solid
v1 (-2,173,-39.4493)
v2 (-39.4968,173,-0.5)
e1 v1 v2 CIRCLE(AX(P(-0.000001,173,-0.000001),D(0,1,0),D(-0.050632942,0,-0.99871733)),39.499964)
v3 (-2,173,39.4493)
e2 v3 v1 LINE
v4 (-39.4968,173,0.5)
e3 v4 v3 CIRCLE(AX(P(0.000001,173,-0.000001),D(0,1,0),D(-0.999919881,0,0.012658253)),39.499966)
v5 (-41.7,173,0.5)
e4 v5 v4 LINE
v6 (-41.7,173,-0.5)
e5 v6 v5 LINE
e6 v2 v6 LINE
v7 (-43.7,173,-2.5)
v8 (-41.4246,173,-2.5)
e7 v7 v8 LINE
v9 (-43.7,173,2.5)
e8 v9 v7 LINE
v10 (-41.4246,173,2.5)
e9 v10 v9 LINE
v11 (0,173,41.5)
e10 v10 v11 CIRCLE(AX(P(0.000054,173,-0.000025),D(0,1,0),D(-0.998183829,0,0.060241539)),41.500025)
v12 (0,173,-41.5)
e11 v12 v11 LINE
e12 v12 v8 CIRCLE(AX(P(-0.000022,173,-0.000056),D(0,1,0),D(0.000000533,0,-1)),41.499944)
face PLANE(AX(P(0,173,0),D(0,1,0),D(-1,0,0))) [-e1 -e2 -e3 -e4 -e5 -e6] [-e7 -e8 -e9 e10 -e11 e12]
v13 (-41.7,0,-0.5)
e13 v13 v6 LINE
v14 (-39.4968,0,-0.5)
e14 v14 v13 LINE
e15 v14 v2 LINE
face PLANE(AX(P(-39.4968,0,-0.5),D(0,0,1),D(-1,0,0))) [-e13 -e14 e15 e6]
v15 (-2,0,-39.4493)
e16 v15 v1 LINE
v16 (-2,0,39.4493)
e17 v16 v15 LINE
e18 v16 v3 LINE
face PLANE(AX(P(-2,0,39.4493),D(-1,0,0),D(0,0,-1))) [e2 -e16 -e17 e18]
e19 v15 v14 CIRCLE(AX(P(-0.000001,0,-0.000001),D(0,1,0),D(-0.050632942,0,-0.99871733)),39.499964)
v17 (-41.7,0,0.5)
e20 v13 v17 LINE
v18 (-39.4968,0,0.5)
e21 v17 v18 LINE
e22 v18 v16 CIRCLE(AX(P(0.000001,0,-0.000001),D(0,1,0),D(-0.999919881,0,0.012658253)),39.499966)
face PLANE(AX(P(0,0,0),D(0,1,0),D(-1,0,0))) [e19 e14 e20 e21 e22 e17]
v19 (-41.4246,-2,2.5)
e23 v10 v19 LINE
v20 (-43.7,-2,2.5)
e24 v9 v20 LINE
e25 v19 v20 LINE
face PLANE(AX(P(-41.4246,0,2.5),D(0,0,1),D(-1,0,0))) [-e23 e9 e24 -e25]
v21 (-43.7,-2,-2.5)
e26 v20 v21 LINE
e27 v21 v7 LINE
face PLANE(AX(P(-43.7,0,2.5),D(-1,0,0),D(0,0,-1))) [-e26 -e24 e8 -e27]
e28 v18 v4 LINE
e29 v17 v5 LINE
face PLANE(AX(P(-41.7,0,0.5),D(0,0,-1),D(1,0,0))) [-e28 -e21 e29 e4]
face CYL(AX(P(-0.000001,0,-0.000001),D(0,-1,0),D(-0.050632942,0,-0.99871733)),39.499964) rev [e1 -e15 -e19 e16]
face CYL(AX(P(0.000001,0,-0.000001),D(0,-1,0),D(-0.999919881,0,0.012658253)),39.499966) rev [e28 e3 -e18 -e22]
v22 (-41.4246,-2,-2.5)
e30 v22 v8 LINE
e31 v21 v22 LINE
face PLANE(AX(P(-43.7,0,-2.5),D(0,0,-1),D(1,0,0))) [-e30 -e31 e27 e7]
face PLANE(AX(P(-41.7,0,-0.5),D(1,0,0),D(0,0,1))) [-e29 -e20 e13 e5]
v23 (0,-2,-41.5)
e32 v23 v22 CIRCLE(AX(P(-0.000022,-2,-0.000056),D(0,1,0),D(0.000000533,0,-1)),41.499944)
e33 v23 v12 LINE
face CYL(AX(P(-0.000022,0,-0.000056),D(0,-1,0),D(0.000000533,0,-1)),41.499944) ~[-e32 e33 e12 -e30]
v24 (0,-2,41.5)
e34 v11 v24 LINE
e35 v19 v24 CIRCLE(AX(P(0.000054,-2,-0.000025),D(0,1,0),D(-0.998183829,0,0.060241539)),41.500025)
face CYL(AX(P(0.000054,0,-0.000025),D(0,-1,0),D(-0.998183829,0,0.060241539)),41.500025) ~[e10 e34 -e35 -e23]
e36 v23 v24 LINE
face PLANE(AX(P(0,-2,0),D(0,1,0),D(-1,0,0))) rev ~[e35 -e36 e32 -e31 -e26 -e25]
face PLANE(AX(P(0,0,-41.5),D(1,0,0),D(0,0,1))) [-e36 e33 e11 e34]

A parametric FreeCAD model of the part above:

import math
import FreeCAD as App
import Part
import Sketcher

V = App.Vector

doc = App.newDocument("Part")
params = doc.addObject("Spreadsheet::Sheet", "Params")
for row, (alias, value) in enumerate([
    ("sketch1_radius", "41.5 mm"),
    ("sketch1_height", "5 mm"),
    ("pad1_length", "2 mm"),
    ("sketch2_radius", "41.5 mm"),
    ("sketch2_height", "5 mm"),
    ("sketch2_radius2", "39.5 mm"),
    ("pad2_length", "173 mm"),
], start=1):
    params.set(f"A{row}", alias)
    params.set(f"B{row}", "=" + value)
    params.setAlias(f"B{row}", alias)

body = doc.addObject("PartDesign::Body", "Body")

# Sketch on XZ plane
sketch1 = body.newObject("Sketcher::SketchObject", "Sketch")
sketch1.AttachmentSupport = (doc.getObject("XZ_Plane"), [""])
sketch1.MapMode = "FlatFace"
sketch1.addGeometry([
    Part.LineSegment(V(0, 41.5, 0), V(0, -41.5, 0)),  # 0
    Part.ArcOfCircle(Part.Circle(V(0, 0, 0), V(0, 0, 1), 41.5), math.radians(-177), math.radians(-90)),  # 1
    Part.LineSegment(V(-41.4, -2.5, 0), V(-43.7, -2.5, 0)),  # 2
    Part.LineSegment(V(-43.7, -2.5, 0), V(-43.7, 2.5, 0)),  # 3
    Part.LineSegment(V(-43.7, 2.5, 0), V(-41.4, 2.5, 0)),  # 4
    Part.ArcOfCircle(Part.Circle(V(0, 0, 0), V(0, 0, 1), 41.5), math.radians(90), math.radians(177)),  # 5
], False)
sketch1.addConstraint([
    Sketcher.Constraint("Coincident", 0, 2, 1, 2),
    Sketcher.Constraint("Coincident", 1, 1, 2, 1),
    Sketcher.Constraint("Coincident", 2, 2, 3, 1),
    Sketcher.Constraint("Coincident", 3, 2, 4, 1),
    Sketcher.Constraint("Coincident", 4, 2, 5, 2),
    Sketcher.Constraint("Coincident", 5, 1, 0, 1),
    Sketcher.Constraint("Vertical", 0),
    Sketcher.Constraint("Horizontal", 2),
    Sketcher.Constraint("Vertical", 3),
    Sketcher.Constraint("Horizontal", 4),
    Sketcher.Constraint("Coincident", 1, 3, -1, 1),
    Sketcher.Constraint("Coincident", 5, 3, -1, 1),
    Sketcher.Constraint("Equal", 1, 5),
    Sketcher.Constraint("PointOnObject", 0, 2, -2),
    Sketcher.Constraint("Vertical", 1, 1, 4, 2),
    Sketcher.Constraint("Radius", 1, 41.5),
    Sketcher.Constraint("DistanceY", 3, 1, 3, 2, 5.0),
    Sketcher.Constraint("DistanceX", 2, 2, -1, 1, 43.7),
])
sketch1.setExpression("Constraints[15]", "Params.sketch1_radius")
sketch1.setExpression("Constraints[16]", "Params.sketch1_height")
pad1 = body.newObject("PartDesign::Pad", "Pad")
pad1.Profile = sketch1
pad1.setExpression("Length", "Params.pad1_length")

# Sketch on XZ plane
sketch2 = body.newObject("Sketcher::SketchObject", "Sketch001")
sketch2.AttachmentSupport = (doc.getObject("XZ_Plane"), [""])
sketch2.MapMode = "FlatFace"
sketch2.addGeometry([
    Part.LineSegment(V(0, 41.5, 0), V(0, -41.5, 0)),  # 0
    Part.ArcOfCircle(Part.Circle(V(0, 0, 0), V(0, 0, 1), 41.5), math.radians(-177), math.radians(-90)),  # 1
    Part.LineSegment(V(-41.4, -2.5, 0), V(-43.7, -2.5, 0)),  # 2
    Part.LineSegment(V(-43.7, -2.5, 0), V(-43.7, 2.5, 0)),  # 3
    Part.LineSegment(V(-43.7, 2.5, 0), V(-41.4, 2.5, 0)),  # 4
    Part.ArcOfCircle(Part.Circle(V(0, 0, 0), V(0, 0, 1), 41.5), math.radians(90), math.radians(177)),  # 5
    Part.LineSegment(V(-2, -39.4, 0), V(-2, 39.4, 0)),  # 6
    Part.ArcOfCircle(Part.Circle(V(0, 0, 0), V(0, 0, 1), 39.5), math.radians(93), math.radians(179)),  # 7
    Part.LineSegment(V(-39.5, 0.5, 0), V(-41.7, 0.5, 0)),  # 8
    Part.LineSegment(V(-41.7, 0.5, 0), V(-41.7, -0.5, 0)),  # 9
    Part.LineSegment(V(-41.7, -0.5, 0), V(-39.5, -0.5, 0)),  # 10
    Part.ArcOfCircle(Part.Circle(V(0, 0, 0), V(0, 0, 1), 39.5), math.radians(-179), math.radians(-93)),  # 11
], False)
sketch2.addConstraint([
    Sketcher.Constraint("Coincident", 0, 2, 1, 2),
    Sketcher.Constraint("Coincident", 1, 1, 2, 1),
    Sketcher.Constraint("Coincident", 2, 2, 3, 1),
    Sketcher.Constraint("Coincident", 3, 2, 4, 1),
    Sketcher.Constraint("Coincident", 4, 2, 5, 2),
    Sketcher.Constraint("Coincident", 5, 1, 0, 1),
    Sketcher.Constraint("Coincident", 6, 2, 7, 1),
    Sketcher.Constraint("Coincident", 7, 2, 8, 1),
    Sketcher.Constraint("Coincident", 8, 2, 9, 1),
    Sketcher.Constraint("Coincident", 9, 2, 10, 1),
    Sketcher.Constraint("Coincident", 10, 2, 11, 1),
    Sketcher.Constraint("Coincident", 11, 2, 6, 1),
    Sketcher.Constraint("Vertical", 0),
    Sketcher.Constraint("Horizontal", 2),
    Sketcher.Constraint("Vertical", 3),
    Sketcher.Constraint("Horizontal", 4),
    Sketcher.Constraint("Vertical", 6),
    Sketcher.Constraint("Horizontal", 8),
    Sketcher.Constraint("Vertical", 9),
    Sketcher.Constraint("Horizontal", 10),
    Sketcher.Constraint("Coincident", 1, 3, -1, 1),
    Sketcher.Constraint("Coincident", 5, 3, -1, 1),
    Sketcher.Constraint("Coincident", 7, 3, -1, 1),
    Sketcher.Constraint("Coincident", 11, 3, -1, 1),
    Sketcher.Constraint("Equal", 1, 5),
    Sketcher.Constraint("Equal", 7, 11),
    Sketcher.Constraint("PointOnObject", 0, 2, -2),
    Sketcher.Constraint("Vertical", 1, 1, 4, 2),
    Sketcher.Constraint("Vertical", 7, 2, 10, 2),
    Sketcher.Constraint("Radius", 1, 41.5),
    Sketcher.Constraint("DistanceY", 3, 1, 3, 2, 5.0),
    Sketcher.Constraint("DistanceX", 6, 2, -1, 1, 2.0),
    Sketcher.Constraint("DistanceY", 7, 2, 4, 2, 2.0),
    Sketcher.Constraint("DistanceX", 3, 2, 8, 2, 2.0),
    Sketcher.Constraint("Radius", 7, 39.5),
    Sketcher.Constraint("DistanceX", 2, 2, -1, 1, 43.7),
])
sketch2.setExpression("Constraints[29]", "Params.sketch2_radius")
sketch2.setExpression("Constraints[30]", "Params.sketch2_height")
sketch2.setExpression("Constraints[34]", "Params.sketch2_radius2")
pad2 = body.newObject("PartDesign::Pad", "Pad001")
pad2.Profile = sketch2
pad2.setExpression("Length", "Params.pad2_length")
pad2.Reversed = True

doc.recompute()
